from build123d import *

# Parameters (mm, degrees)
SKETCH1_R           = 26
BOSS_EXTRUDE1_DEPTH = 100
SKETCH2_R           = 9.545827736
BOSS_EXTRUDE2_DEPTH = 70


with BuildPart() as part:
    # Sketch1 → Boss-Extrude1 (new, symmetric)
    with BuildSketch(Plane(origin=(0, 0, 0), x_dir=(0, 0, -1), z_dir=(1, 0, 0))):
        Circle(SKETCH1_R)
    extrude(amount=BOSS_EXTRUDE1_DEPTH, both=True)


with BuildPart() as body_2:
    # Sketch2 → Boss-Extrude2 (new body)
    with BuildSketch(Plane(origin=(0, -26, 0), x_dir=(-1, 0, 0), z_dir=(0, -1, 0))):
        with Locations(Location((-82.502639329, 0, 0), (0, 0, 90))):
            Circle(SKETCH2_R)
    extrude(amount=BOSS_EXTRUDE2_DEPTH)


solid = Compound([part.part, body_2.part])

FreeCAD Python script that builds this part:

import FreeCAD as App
import Part
import Sketcher

V = App.Vector
Q = App.Units.Quantity

doc = App.newDocument("Part")
params = doc.addObject("Spreadsheet::Sheet", "Params")
for row, (alias, value) in enumerate([
    ("sketch1_diameter", "52 mm"),
    ("pad1_length", "200 mm"),
    ("pad2_length", "70 mm"),
], start=1):
    params.set(f"A{row}", alias)
    params.set(f"B{row}", "=" + value)
    params.setAlias(f"B{row}", alias)

body = doc.addObject("PartDesign::Body", "Body")

sketch1 = body.newObject("Sketcher::SketchObject", "Sketch")
sketch1.AttachmentSupport = (doc.getObject("YZ_Plane"), [""])
sketch1.MapMode = "FlatFace"
sketch1.addGeometry(Part.Circle(V(0, 0, 0), V(0, 0, 1), 26), False)
sketch1.addConstraint([
    Sketcher.Constraint("Coincident", 0, 3, -1, 1),
    Sketcher.Constraint("Diameter", 0, Q("52 mm")),
])
sketch1.setExpression("Constraints[1]", "Params.sketch1_diameter")
pad1 = body.newObject("PartDesign::Pad", "Pad")
pad1.Profile = sketch1
pad1.setExpression("Length", "Params.pad1_length")
pad1.Midplane = True
body2 = doc.addObject("PartDesign::Body", "Body001")

sketch2 = body2.newObject("Sketcher::SketchObject", "Sketch001")
sketch2.AttachmentSupport = (doc.getObject("XZ_Plane001"), [""])
sketch2.MapMode = "FlatFace"
sketch2.AttachmentOffset = App.Placement(V(0, 0, 26), App.Rotation())
sketch2.addGeometry(Part.Circle(V(82.502639, 0, 0), V(0, 0, 1), 9.545828), False)
sketch2.addConstraint([
    Sketcher.Constraint("PointOnObject", 0, 3, -1),
    Sketcher.Constraint("Diameter", 0, Q("19.091655 mm")),
    Sketcher.Constraint("DistanceX", -1, 1, 0, 3, Q("82.502639 mm")),
])
pad2 = body2.newObject("PartDesign::Pad", "Pad001")
pad2.Profile = sketch2
pad2.setExpression("Length", "Params.pad2_length")

doc.recompute()
